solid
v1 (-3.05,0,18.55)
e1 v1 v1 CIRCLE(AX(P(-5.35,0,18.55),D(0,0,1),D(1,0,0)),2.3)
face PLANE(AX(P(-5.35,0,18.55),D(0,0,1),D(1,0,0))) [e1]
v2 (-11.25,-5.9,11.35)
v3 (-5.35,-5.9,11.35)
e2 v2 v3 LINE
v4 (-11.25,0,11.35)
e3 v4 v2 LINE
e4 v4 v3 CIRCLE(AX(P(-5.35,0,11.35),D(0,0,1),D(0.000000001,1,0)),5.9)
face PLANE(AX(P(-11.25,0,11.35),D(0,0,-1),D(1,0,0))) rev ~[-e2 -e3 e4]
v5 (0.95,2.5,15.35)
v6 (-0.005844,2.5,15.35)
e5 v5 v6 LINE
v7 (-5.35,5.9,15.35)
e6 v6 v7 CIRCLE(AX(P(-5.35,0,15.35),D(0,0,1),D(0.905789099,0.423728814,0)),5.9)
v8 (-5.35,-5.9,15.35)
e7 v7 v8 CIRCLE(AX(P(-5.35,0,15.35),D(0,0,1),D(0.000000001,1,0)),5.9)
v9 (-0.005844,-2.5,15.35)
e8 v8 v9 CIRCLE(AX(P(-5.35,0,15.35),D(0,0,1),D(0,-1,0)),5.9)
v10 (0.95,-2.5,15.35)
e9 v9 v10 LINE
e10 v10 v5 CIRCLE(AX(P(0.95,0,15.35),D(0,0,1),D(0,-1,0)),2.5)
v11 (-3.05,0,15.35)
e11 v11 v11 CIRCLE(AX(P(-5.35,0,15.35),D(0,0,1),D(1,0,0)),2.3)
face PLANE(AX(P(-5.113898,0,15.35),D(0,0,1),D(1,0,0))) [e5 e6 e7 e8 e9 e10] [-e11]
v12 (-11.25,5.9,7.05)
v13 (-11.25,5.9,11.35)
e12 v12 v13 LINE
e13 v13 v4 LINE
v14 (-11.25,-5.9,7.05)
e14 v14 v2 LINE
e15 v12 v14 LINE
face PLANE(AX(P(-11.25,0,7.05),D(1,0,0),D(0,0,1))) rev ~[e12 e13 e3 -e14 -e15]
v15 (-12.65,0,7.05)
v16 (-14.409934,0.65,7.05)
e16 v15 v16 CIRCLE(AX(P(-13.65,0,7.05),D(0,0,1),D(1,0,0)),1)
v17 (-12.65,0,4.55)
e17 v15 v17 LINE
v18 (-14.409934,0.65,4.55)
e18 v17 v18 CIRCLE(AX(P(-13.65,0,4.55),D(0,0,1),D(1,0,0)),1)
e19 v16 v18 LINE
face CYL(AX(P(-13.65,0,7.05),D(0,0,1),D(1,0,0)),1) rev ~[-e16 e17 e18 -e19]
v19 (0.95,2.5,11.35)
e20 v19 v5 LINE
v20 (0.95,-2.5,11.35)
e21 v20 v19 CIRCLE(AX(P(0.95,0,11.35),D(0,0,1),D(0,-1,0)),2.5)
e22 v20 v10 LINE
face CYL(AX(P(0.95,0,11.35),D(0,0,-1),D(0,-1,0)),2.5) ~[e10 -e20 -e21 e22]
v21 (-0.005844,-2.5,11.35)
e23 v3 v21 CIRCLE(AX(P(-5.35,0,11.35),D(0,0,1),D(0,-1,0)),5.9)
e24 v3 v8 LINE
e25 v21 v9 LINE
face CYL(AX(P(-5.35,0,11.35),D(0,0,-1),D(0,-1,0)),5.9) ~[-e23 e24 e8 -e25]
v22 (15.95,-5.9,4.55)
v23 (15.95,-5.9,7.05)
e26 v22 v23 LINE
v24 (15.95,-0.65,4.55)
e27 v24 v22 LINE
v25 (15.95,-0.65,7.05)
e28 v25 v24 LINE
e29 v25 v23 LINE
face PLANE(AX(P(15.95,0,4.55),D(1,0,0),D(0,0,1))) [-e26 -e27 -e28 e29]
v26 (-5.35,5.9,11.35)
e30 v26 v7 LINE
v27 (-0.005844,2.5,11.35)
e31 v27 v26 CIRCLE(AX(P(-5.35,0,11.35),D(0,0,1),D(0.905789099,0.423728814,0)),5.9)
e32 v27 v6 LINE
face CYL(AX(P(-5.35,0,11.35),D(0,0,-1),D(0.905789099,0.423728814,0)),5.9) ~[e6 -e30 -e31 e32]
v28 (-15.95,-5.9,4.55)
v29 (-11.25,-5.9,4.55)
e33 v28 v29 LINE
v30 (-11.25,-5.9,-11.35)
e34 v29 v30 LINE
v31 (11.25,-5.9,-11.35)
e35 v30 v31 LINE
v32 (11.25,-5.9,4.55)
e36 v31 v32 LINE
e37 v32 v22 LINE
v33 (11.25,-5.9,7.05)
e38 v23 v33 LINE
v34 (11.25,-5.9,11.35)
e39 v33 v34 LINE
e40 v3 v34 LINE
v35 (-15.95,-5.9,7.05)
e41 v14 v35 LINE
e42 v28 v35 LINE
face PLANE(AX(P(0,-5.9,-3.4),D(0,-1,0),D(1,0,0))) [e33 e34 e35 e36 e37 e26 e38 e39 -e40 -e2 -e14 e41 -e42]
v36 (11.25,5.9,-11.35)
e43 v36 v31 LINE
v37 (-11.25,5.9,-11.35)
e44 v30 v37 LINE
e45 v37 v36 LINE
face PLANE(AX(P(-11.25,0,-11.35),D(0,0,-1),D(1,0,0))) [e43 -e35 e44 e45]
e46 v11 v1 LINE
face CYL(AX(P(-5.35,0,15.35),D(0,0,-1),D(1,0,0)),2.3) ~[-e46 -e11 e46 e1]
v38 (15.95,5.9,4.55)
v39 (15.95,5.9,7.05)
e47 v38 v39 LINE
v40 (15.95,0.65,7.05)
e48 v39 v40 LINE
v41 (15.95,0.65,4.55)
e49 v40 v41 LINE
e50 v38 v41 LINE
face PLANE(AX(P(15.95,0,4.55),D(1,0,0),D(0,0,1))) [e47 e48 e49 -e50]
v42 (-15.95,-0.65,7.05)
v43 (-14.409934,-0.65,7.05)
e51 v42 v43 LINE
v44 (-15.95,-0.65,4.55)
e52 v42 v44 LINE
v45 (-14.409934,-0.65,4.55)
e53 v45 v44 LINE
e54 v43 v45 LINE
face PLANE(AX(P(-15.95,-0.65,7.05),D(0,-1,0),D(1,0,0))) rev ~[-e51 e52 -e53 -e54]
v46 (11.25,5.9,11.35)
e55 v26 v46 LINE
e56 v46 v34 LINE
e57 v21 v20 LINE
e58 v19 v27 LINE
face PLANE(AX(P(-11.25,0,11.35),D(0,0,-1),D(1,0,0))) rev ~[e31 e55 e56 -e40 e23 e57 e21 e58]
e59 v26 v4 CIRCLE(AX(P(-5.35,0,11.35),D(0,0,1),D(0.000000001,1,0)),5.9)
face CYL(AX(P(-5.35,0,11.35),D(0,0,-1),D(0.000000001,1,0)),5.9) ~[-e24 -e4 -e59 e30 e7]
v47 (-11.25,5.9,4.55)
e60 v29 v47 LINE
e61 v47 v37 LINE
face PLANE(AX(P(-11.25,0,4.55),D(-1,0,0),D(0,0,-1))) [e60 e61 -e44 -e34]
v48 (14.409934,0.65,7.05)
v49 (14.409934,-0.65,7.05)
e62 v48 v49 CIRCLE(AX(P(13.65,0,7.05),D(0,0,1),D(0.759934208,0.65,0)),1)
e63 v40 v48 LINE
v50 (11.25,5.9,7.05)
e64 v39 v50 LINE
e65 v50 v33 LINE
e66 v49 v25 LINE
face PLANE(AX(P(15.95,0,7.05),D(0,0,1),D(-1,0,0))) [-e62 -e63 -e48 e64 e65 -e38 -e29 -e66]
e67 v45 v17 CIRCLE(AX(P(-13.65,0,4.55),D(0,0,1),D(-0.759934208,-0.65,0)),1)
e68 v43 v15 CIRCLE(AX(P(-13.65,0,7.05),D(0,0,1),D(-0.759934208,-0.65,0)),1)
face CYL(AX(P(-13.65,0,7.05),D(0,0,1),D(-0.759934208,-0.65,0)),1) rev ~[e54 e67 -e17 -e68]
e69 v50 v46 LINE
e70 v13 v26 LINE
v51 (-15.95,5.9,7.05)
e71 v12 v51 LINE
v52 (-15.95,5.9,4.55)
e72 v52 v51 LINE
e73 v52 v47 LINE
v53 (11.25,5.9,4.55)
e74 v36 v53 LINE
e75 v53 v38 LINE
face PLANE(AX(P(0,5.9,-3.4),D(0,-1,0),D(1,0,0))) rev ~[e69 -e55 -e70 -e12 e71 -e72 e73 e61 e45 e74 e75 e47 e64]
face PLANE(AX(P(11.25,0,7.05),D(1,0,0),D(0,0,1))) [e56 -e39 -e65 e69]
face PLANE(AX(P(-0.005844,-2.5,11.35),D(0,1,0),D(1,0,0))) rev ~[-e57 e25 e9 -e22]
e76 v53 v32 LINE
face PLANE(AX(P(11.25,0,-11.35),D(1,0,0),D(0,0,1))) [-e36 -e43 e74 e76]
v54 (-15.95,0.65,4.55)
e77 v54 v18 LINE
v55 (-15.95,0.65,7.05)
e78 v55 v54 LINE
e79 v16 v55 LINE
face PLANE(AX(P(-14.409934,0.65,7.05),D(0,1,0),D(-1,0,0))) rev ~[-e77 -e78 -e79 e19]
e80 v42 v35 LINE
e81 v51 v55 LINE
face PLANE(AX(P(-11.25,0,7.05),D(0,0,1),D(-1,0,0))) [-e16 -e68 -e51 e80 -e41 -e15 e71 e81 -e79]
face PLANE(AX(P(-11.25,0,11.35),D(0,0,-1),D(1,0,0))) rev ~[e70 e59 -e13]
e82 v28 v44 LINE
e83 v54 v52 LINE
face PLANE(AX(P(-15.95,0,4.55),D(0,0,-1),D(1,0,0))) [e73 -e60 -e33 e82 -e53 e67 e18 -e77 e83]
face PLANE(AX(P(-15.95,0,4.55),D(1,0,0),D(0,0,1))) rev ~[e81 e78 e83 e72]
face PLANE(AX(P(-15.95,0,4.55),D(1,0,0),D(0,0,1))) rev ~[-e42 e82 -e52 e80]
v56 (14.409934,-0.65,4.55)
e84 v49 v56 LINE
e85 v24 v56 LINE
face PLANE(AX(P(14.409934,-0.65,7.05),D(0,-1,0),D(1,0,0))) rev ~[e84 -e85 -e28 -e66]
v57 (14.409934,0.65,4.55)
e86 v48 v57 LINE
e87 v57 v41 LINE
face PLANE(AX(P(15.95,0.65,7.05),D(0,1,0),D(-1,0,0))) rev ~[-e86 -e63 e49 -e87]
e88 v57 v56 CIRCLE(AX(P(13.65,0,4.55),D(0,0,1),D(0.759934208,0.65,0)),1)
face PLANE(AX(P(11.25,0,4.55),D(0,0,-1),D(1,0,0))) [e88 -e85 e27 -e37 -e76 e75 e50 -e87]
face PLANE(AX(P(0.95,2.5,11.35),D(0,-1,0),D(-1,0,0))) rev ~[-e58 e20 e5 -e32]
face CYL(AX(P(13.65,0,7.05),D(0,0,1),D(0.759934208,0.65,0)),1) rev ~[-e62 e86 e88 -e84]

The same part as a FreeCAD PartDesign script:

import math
import FreeCAD as App
import Part
import Sketcher
from FreeCAD import Vector
Q = App.Units.Quantity


def add_polygon(sketch, points):
    """Adds a closed chain of lines whose ends are joined by coincident constraints."""
    first, n = sketch.GeometryCount, len(points)
    for a, b in zip(points, points[1:] + points[:1]):
        sketch.addGeometry(Part.LineSegment(App.Vector(*a, 0), App.Vector(*b, 0)), False)
    for i in range(n):
        sketch.addConstraint(Sketcher.Constraint("Coincident", first + i, 2, first + (i + 1) % n, 1))

doc = App.newDocument("Part")
body = doc.addObject("PartDesign::Body", "Body")

# Sketch on XZ plane
sketch1 = body.newObject("Sketcher::SketchObject", "Sketch")
sketch1.AttachmentSupport = (doc.getObject("XZ_Plane"), [""])
sketch1.MapMode = "FlatFace"
add_polygon(sketch1, [(-11.25, -11.35), (11.25, -11.35), (11.25, 4.55), (15.95, 4.55), (15.95, 7.05), (11.25, 7.05), (11.25, 11.35), (-11.25, 11.35), (-11.25, 7.05), (-15.95, 7.05), (-15.95, 4.55), (-11.25, 4.55)])  # lines 0-11
sketch1.addConstraint(Sketcher.Constraint("Horizontal", 0))
sketch1.addConstraint(Sketcher.Constraint("Vertical", 1))
sketch1.addConstraint(Sketcher.Constraint("Horizontal", 2))
sketch1.addConstraint(Sketcher.Constraint("Vertical", 3))
sketch1.addConstraint(Sketcher.Constraint("Horizontal", 4))
sketch1.addConstraint(Sketcher.Constraint("Vertical", 5))
sketch1.addConstraint(Sketcher.Constraint("Horizontal", 6))
sketch1.addConstraint(Sketcher.Constraint("Vertical", 7))
sketch1.addConstraint(Sketcher.Constraint("Horizontal", 8))
sketch1.addConstraint(Sketcher.Constraint("Vertical", 9))
sketch1.addConstraint(Sketcher.Constraint("Horizontal", 10))
sketch1.addConstraint(Sketcher.Constraint("Vertical", 11))
sketch1.addConstraint(Sketcher.Constraint("Symmetric", 0, 2, 6, 2, -1, 1))
sketch1.addConstraint(Sketcher.Constraint("Symmetric", 4, 2, 7, 2, -2))
sketch1.addConstraint(Sketcher.Constraint("Symmetric", 2, 2, 9, 2, -2))
sketch1.addConstraint(Sketcher.Constraint("Vertical", 7, 2, 10, 2))
sketch1.addConstraint(Sketcher.Constraint("DistanceX", 0, 1, 0, 2, Q("22.5 mm")))
sketch1.addConstraint(Sketcher.Constraint("DistanceX", 2, 1, 2, 2, Q("4.7 mm")))
sketch1.addConstraint(Sketcher.Constraint("DistanceY", 1, 1, 1, 2, Q("15.9 mm")))
sketch1.addConstraint(Sketcher.Constraint("DistanceY", 3, 1, 3, 2, Q("2.5 mm")))
sketch1.addConstraint(Sketcher.Constraint("DistanceY", 5, 1, 5, 2, Q("4.3 mm")))
pad1 = body.newObject("PartDesign::Pad", "Pad")
pad1.Profile = sketch1
pad1.Length = 11.8
pad1.Midplane = True

# Sketch on XY plane
sketch2 = body.newObject("Sketcher::SketchObject", "Sketch001")
sketch2.AttachmentSupport = (doc.getObject("XY_Plane"), [""])
sketch2.MapMode = "FlatFace"
sketch2.AttachmentOffset = App.Placement(Vector(0, 0, 11.35), App.Rotation())
sketch2.addGeometry(Part.ArcOfCircle(Part.Circle(Vector(-5.35, 0, 0), Vector(0, 0, 1), 5.9), math.radians(25.070228), math.radians(90)), False)
sketch2.addGeometry(Part.ArcOfCircle(Part.Circle(Vector(-5.35, 0, 0), Vector(0, 0, 1), 5.9), math.radians(90), math.radians(270)), False)
sketch2.addGeometry(Part.ArcOfCircle(Part.Circle(Vector(-5.35, 0, 0), Vector(0, 0, 1), 5.9), math.radians(-90), math.radians(-25.070228)), False)
sketch2.addGeometry(Part.LineSegment(Vector(-0.005844, -2.5, 0), Vector(0.95, -2.5, 0)), False)
sketch2.addGeometry(Part.ArcOfCircle(Part.Circle(Vector(0.95, 0, 0), Vector(0, 0, 1), 2.5), math.radians(-90), math.radians(90)), False)
sketch2.addGeometry(Part.LineSegment(Vector(0.95, 2.5, 0), Vector(-0.005844, 2.5, 0)), False)
sketch2.addConstraint(Sketcher.Constraint("Tangent", 0, 2, 1, 1))
sketch2.addConstraint(Sketcher.Constraint("Tangent", 1, 2, 2, 1))
sketch2.addConstraint(Sketcher.Constraint("Coincident", 2, 2, 3, 1))
sketch2.addConstraint(Sketcher.Constraint("Tangent", 3, 2, 4, 1))
sketch2.addConstraint(Sketcher.Constraint("Tangent", 4, 2, 5, 1))
sketch2.addConstraint(Sketcher.Constraint("Coincident", 5, 2, 0, 1))
sketch2.addConstraint(Sketcher.Constraint("Horizontal", 3))
sketch2.addConstraint(Sketcher.Constraint("Horizontal", 5))
sketch2.addConstraint(Sketcher.Constraint("Equal", 0, 1))
sketch2.addConstraint(Sketcher.Constraint("Equal", 1, 2))
sketch2.addConstraint(Sketcher.Constraint("Symmetric", 0, 2, 1, 2, -1))
sketch2.addConstraint(Sketcher.Constraint("PointOnObject", 4, 3, -1))
sketch2.addConstraint(Sketcher.Constraint("Vertical", 2, 3, 0, 2))
sketch2.addConstraint(Sketcher.Constraint("Radius", 0, Q("5.9 mm")))
sketch2.addConstraint(Sketcher.Constraint("Radius", 4, Q("2.5 mm")))
sketch2.addConstraint(Sketcher.Constraint("DistanceX", 0, 3, 4, 3, Q("6.3 mm")))
sketch2.addConstraint(Sketcher.Constraint("DistanceX", 0, 3, -1, 1, Q("5.35 mm")))
pad2 = body.newObject("PartDesign::Pad", "Pad001")
pad2.Profile = sketch2
pad2.Length = 4

# Sketch on XY plane
sketch3 = body.newObject("Sketcher::SketchObject", "Sketch002")
sketch3.AttachmentSupport = (doc.getObject("XY_Plane"), [""])
sketch3.MapMode = "FlatFace"
sketch3.AttachmentOffset = App.Placement(Vector(0, 0, 7.05), App.Rotation())
sketch3.addGeometry(Part.ArcOfCircle(Part.Circle(Vector(13.65, 0, 0), Vector(0, 0, 1), 1), math.radians(40.541602), math.radians(319.458398)), False)
sketch3.addGeometry(Part.LineSegment(Vector(14.409934, -0.65, 0), Vector(15.95, -0.65, 0)), False)
sketch3.addGeometry(Part.LineSegment(Vector(15.95, -0.65, 0), Vector(15.95, 0.65, 0)), False)
sketch3.addGeometry(Part.LineSegment(Vector(15.95, 0.65, 0), Vector(14.409934, 0.65, 0)), False)
sketch3.addConstraint(Sketcher.Constraint("Coincident", 0, 2, 1, 1))
sketch3.addConstraint(Sketcher.Constraint("Coincident", 1, 2, 2, 1))
sketch3.addConstraint(Sketcher.Constraint("Coincident", 2, 2, 3, 1))
sketch3.addConstraint(Sketcher.Constraint("Coincident", 3, 2, 0, 1))
sketch3.addConstraint(Sketcher.Constraint("Horizontal", 1))
sketch3.addConstraint(Sketcher.Constraint("Vertical", 2))
sketch3.addConstraint(Sketcher.Constraint("Horizontal", 3))
sketch3.addConstraint(Sketcher.Constraint("Symmetric", 0, 2, 3, 2, -1))
sketch3.addConstraint(Sketcher.Constraint("Radius", 0, Q("1 mm")))
sketch3.addConstraint(Sketcher.Constraint("DistanceY", 2, 1, 2, 2, Q("1.3 mm")))
sketch3.addConstraint(Sketcher.Constraint("DistanceX", 0, 3, 1, 2, Q("2.3 mm")))
sketch3.addConstraint(Sketcher.Constraint("DistanceX", -1, 1, 0, 3, Q("13.65 mm")))
pocket1 = body.newObject("PartDesign::Pocket", "Pocket")
pocket1.Profile = sketch3
pocket1.Type = "ThroughAll"

# Sketch on XY plane
sketch4 = body.newObject("Sketcher::SketchObject", "Sketch003")
sketch4.AttachmentSupport = (doc.getObject("XY_Plane"), [""])
sketch4.MapMode = "FlatFace"
sketch4.AttachmentOffset = App.Placement(Vector(0, 0, 7.05), App.Rotation())
sketch4.addGeometry(Part.ArcOfCircle(Part.Circle(Vector(-13.65, 0, 0), Vector(0, 0, 1), 1), math.radians(-139.458398), math.radians(0)), False)
sketch4.addGeometry(Part.ArcOfCircle(Part.Circle(Vector(-13.65, 0, 0), Vector(0, 0, 1), 1), math.radians(0), math.radians(139.458398)), False)
sketch4.addGeometry(Part.LineSegment(Vector(-14.409934, 0.65, 0), Vector(-15.95, 0.65, 0)), False)
sketch4.addGeometry(Part.LineSegment(Vector(-15.95, 0.65, 0), Vector(-15.95, -0.65, 0)), False)
sketch4.addGeometry(Part.LineSegment(Vector(-15.95, -0.65, 0), Vector(-14.409934, -0.65, 0)), False)
sketch4.addConstraint(Sketcher.Constraint("Tangent", 0, 2, 1, 1))
sketch4.addConstraint(Sketcher.Constraint("Coincident", 1, 2, 2, 1))
sketch4.addConstraint(Sketcher.Constraint("Coincident", 2, 2, 3, 1))
sketch4.addConstraint(Sketcher.Constraint("Coincident", 3, 2, 4, 1))
sketch4.addConstraint(Sketcher.Constraint("Coincident", 4, 2, 0, 1))
sketch4.addConstraint(Sketcher.Constraint("Horizontal", 2))
sketch4.addConstraint(Sketcher.Constraint("Vertical", 3))
sketch4.addConstraint(Sketcher.Constraint("Horizontal", 4))
sketch4.addConstraint(Sketcher.Constraint("Equal", 0, 1))
sketch4.addConstraint(Sketcher.Constraint("Symmetric", 1, 2, 4, 2, -1))
sketch4.addConstraint(Sketcher.Constraint("PointOnObject", 0, 2, -1))
sketch4.addConstraint(Sketcher.Constraint("Radius", 0, Q("1 mm")))
sketch4.addConstraint(Sketcher.Constraint("DistanceY", 3, 2, 3, 1, Q("1.3 mm")))
sketch4.addConstraint(Sketcher.Constraint("DistanceX", 2, 2, 0, 3, Q("2.3 mm")))
sketch4.addConstraint(Sketcher.Constraint("DistanceX", 0, 3, -1, 1, Q("13.65 mm")))
pocket2 = body.newObject("PartDesign::Pocket", "Pocket001")
pocket2.Profile = sketch4
pocket2.Length = 25

# Sketch on XY plane
sketch5 = body.newObject("Sketcher::SketchObject", "Sketch004")
sketch5.AttachmentSupport = (doc.getObject("XY_Plane"), [""])
sketch5.MapMode = "FlatFace"
sketch5.AttachmentOffset = App.Placement(Vector(0, 0, 15.35), App.Rotation())
sketch5.addGeometry(Part.Circle(Vector(-5.35, 0, 0), Vector(0, 0, 1), 2.3), False)
sketch5.addConstraint(Sketcher.Constraint("PointOnObject", 0, 3, -1))
sketch5.addConstraint(Sketcher.Constraint("Diameter", 0, Q("4.6 mm")))
sketch5.addConstraint(Sketcher.Constraint("DistanceX", 0, 3, -1, 1, Q("5.35 mm")))
pad3 = body.newObject("PartDesign::Pad", "Pad002")
pad3.Profile = sketch5
pad3.Length = 3.2

doc.recompute()
